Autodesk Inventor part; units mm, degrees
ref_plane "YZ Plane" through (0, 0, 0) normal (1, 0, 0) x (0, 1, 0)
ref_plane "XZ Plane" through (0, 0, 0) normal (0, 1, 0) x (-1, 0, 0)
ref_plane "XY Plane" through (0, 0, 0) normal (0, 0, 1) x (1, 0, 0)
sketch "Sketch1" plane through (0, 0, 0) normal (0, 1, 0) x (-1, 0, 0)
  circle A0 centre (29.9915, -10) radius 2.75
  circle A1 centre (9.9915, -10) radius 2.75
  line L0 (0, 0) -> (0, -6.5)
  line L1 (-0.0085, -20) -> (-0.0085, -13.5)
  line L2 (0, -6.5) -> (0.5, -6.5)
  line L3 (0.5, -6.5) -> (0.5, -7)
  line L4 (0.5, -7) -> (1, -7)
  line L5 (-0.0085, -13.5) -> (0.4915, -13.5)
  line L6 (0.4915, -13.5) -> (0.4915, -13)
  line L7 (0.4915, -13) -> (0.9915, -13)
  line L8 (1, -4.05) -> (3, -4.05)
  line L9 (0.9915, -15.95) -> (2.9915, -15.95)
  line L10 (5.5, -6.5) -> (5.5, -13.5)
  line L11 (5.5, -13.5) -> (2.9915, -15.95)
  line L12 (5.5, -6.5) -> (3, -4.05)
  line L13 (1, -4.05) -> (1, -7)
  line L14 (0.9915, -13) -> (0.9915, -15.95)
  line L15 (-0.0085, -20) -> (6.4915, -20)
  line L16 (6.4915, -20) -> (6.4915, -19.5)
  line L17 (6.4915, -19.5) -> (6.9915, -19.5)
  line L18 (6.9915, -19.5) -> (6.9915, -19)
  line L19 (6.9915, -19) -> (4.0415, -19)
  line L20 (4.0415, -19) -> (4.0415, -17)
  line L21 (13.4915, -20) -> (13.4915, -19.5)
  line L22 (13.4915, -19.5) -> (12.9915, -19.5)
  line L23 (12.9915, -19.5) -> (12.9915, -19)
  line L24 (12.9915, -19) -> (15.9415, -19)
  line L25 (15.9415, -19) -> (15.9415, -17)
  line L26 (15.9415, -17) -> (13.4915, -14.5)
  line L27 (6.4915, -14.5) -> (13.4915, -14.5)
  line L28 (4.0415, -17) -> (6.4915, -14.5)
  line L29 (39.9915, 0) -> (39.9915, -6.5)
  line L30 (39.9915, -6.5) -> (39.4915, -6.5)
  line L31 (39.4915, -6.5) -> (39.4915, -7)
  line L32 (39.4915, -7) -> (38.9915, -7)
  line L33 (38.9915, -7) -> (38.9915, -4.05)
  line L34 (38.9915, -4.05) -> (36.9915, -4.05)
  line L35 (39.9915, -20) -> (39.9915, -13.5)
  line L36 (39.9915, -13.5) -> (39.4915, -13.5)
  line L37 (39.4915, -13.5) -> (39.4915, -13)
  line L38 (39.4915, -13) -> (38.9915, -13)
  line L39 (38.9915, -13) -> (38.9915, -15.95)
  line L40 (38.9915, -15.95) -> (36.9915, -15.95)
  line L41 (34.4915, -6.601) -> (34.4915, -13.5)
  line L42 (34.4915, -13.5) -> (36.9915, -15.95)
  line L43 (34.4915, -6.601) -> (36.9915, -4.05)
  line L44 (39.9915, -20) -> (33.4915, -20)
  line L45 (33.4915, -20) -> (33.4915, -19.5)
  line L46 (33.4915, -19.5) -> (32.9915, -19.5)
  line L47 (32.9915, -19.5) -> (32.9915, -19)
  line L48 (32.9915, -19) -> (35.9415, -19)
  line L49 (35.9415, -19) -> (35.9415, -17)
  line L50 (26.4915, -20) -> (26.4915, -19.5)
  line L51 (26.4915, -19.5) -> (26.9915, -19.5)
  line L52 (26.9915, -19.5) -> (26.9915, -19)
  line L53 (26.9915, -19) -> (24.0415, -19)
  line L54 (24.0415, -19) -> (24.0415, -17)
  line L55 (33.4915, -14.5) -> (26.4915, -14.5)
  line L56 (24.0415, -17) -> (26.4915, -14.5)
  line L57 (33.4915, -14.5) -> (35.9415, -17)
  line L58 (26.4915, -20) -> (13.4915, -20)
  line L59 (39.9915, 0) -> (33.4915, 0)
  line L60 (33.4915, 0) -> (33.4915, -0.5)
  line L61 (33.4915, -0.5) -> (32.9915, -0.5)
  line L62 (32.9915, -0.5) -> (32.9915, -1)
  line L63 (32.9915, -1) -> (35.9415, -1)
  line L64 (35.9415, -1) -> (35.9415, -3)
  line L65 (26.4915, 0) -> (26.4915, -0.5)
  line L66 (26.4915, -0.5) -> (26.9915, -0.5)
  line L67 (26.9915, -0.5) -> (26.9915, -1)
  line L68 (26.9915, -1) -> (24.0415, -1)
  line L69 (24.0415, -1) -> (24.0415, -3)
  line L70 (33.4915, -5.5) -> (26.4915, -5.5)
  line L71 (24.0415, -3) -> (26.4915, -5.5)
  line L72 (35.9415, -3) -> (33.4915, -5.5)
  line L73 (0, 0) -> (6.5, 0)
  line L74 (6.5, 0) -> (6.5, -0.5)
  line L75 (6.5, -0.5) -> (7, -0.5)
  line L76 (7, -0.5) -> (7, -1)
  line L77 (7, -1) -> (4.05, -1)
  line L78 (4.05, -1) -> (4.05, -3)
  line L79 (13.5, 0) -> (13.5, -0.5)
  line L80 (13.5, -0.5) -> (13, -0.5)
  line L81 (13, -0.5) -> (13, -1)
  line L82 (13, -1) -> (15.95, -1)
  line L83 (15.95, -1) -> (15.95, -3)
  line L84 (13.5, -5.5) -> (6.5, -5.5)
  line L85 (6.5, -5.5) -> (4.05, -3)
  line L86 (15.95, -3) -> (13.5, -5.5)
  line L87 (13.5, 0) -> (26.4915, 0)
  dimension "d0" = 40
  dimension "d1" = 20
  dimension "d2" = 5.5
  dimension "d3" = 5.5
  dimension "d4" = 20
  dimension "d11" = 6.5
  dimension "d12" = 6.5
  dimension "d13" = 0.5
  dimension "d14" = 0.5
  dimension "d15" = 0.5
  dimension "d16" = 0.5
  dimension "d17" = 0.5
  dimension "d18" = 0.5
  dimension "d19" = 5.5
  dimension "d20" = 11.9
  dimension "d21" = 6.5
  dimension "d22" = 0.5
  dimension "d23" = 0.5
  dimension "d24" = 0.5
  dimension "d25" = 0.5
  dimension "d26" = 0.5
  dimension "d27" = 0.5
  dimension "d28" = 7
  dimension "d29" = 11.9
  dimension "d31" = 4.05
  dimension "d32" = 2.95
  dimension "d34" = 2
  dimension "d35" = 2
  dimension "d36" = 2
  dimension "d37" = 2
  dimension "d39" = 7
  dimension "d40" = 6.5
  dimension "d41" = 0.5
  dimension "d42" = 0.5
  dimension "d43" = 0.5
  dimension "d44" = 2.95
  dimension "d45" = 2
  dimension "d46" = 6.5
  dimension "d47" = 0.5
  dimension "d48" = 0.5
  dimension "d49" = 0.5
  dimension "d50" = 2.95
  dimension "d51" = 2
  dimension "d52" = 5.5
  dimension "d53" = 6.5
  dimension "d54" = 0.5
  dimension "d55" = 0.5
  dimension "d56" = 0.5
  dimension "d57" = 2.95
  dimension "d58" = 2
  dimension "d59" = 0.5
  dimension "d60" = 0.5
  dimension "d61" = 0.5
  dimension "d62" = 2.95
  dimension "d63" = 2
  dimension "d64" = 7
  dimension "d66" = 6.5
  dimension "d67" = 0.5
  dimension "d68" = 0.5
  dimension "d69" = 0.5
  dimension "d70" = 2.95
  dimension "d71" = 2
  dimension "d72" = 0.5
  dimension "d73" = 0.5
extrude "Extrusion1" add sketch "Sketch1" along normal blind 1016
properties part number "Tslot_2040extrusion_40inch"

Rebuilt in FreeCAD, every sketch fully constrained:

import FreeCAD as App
import Part
import Sketcher
from FreeCAD import Vector

doc = App.newDocument("Part")
body = doc.addObject("PartDesign::Body", "Body")

sketch1 = body.newObject("Sketcher::SketchObject", "Sketch")
sketch1.AttachmentSupport = (doc.getObject("XZ_Plane"), [""])
sketch1.MapMode = "FlatFace"
sketch1.addGeometry([
    Part.LineSegment(Vector(-6.5, 0, 0), Vector(0, 0, 0)),
    Part.LineSegment(Vector(0, 0, 0), Vector(0, -6.5, 0)),
    Part.LineSegment(Vector(0, -6.5, 0), Vector(-0.5, -6.5, 0)),
    Part.LineSegment(Vector(-0.5, -6.5, 0), Vector(-0.5, -7, 0)),
    Part.LineSegment(Vector(-0.5, -7, 0), Vector(-1, -7, 0)),
    Part.LineSegment(Vector(-1, -7, 0), Vector(-1, -4, 0)),
    Part.LineSegment(Vector(-1, -4, 0), Vector(-3, -4, 0)),
    Part.LineSegment(Vector(-3, -4, 0), Vector(-5.5, -6.5, 0)),
    Part.LineSegment(Vector(-5.5, -6.5, 0), Vector(-5.5, -13.5, 0)),
    Part.LineSegment(Vector(-5.5, -13.5, 0), Vector(-3, -15.9, 0)),
    Part.LineSegment(Vector(-3, -15.9, 0), Vector(-1, -15.9, 0)),
    Part.LineSegment(Vector(-1, -15.9, 0), Vector(-1, -13, 0)),
    Part.LineSegment(Vector(-1, -13, 0), Vector(-0.5, -13, 0)),
    Part.LineSegment(Vector(-0.5, -13, 0), Vector(-0.5, -13.5, 0)),
    Part.LineSegment(Vector(-0.5, -13.5, 0), Vector(0, -13.5, 0)),
    Part.LineSegment(Vector(0, -13.5, 0), Vector(0, -20, 0)),
    Part.LineSegment(Vector(0, -20, 0), Vector(-6.5, -20, 0)),
    Part.LineSegment(Vector(-6.5, -20, 0), Vector(-6.5, -19.5, 0)),
    Part.LineSegment(Vector(-6.5, -19.5, 0), Vector(-7, -19.5, 0)),
    Part.LineSegment(Vector(-7, -19.5, 0), Vector(-7, -19, 0)),
    Part.LineSegment(Vector(-7, -19, 0), Vector(-4, -19, 0)),
    Part.LineSegment(Vector(-4, -19, 0), Vector(-4, -17, 0)),
    Part.LineSegment(Vector(-4, -17, 0), Vector(-6.5, -14.5, 0)),
    Part.LineSegment(Vector(-6.5, -14.5, 0), Vector(-13.5, -14.5, 0)),
    Part.LineSegment(Vector(-13.5, -14.5, 0), Vector(-15.9, -17, 0)),
    Part.LineSegment(Vector(-15.9, -17, 0), Vector(-15.9, -19, 0)),
    Part.LineSegment(Vector(-15.9, -19, 0), Vector(-13, -19, 0)),
    Part.LineSegment(Vector(-13, -19, 0), Vector(-13, -19.5, 0)),
    Part.LineSegment(Vector(-13, -19.5, 0), Vector(-13.5, -19.5, 0)),
    Part.LineSegment(Vector(-13.5, -19.5, 0), Vector(-13.5, -20, 0)),
    Part.LineSegment(Vector(-13.5, -20, 0), Vector(-26.5, -20, 0)),
    Part.LineSegment(Vector(-26.5, -20, 0), Vector(-26.5, -19.5, 0)),
    Part.LineSegment(Vector(-26.5, -19.5, 0), Vector(-27, -19.5, 0)),
    Part.LineSegment(Vector(-27, -19.5, 0), Vector(-27, -19, 0)),
    Part.LineSegment(Vector(-27, -19, 0), Vector(-24, -19, 0)),
    Part.LineSegment(Vector(-24, -19, 0), Vector(-24, -17, 0)),
    Part.LineSegment(Vector(-24, -17, 0), Vector(-26.5, -14.5, 0)),
    Part.LineSegment(Vector(-26.5, -14.5, 0), Vector(-33.5, -14.5, 0)),
    Part.LineSegment(Vector(-33.5, -14.5, 0), Vector(-35.9, -17, 0)),
    Part.LineSegment(Vector(-35.9, -17, 0), Vector(-35.9, -19, 0)),
    Part.LineSegment(Vector(-35.9, -19, 0), Vector(-33, -19, 0)),
    Part.LineSegment(Vector(-33, -19, 0), Vector(-33, -19.5, 0)),
    Part.LineSegment(Vector(-33, -19.5, 0), Vector(-33.5, -19.5, 0)),
    Part.LineSegment(Vector(-33.5, -19.5, 0), Vector(-33.5, -20, 0)),
    Part.LineSegment(Vector(-33.5, -20, 0), Vector(-40, -20, 0)),
    Part.LineSegment(Vector(-40, -20, 0), Vector(-40, -13.5, 0)),
    Part.LineSegment(Vector(-40, -13.5, 0), Vector(-39.5, -13.5, 0)),
    Part.LineSegment(Vector(-39.5, -13.5, 0), Vector(-39.5, -13, 0)),
    Part.LineSegment(Vector(-39.5, -13, 0), Vector(-39, -13, 0)),
    Part.LineSegment(Vector(-39, -13, 0), Vector(-39, -15.9, 0)),
    Part.LineSegment(Vector(-39, -15.9, 0), Vector(-37, -15.9, 0)),
    Part.LineSegment(Vector(-37, -15.9, 0), Vector(-34.5, -13.5, 0)),
    Part.LineSegment(Vector(-34.5, -13.5, 0), Vector(-34.5, -6.6, 0)),
    Part.LineSegment(Vector(-34.5, -6.6, 0), Vector(-37, -4, 0)),
    Part.LineSegment(Vector(-37, -4, 0), Vector(-39, -4, 0)),
    Part.LineSegment(Vector(-39, -4, 0), Vector(-39, -7, 0)),
    Part.LineSegment(Vector(-39, -7, 0), Vector(-39.5, -7, 0)),
    Part.LineSegment(Vector(-39.5, -7, 0), Vector(-39.5, -6.5, 0)),
    Part.LineSegment(Vector(-39.5, -6.5, 0), Vector(-40, -6.5, 0)),
    Part.LineSegment(Vector(-40, -6.5, 0), Vector(-40, 0, 0)),
    Part.LineSegment(Vector(-40, 0, 0), Vector(-33.5, 0, 0)),
    Part.LineSegment(Vector(-33.5, 0, 0), Vector(-33.5, -0.5, 0)),
    Part.LineSegment(Vector(-33.5, -0.5, 0), Vector(-33, -0.5, 0)),
    Part.LineSegment(Vector(-33, -0.5, 0), Vector(-33, -1, 0)),
    Part.LineSegment(Vector(-33, -1, 0), Vector(-35.9, -1, 0)),
    Part.LineSegment(Vector(-35.9, -1, 0), Vector(-35.9, -3, 0)),
    Part.LineSegment(Vector(-35.9, -3, 0), Vector(-33.5, -5.5, 0)),
    Part.LineSegment(Vector(-33.5, -5.5, 0), Vector(-26.5, -5.5, 0)),
    Part.LineSegment(Vector(-26.5, -5.5, 0), Vector(-24, -3, 0)),
    Part.LineSegment(Vector(-24, -3, 0), Vector(-24, -1, 0)),
    Part.LineSegment(Vector(-24, -1, 0), Vector(-27, -1, 0)),
    Part.LineSegment(Vector(-27, -1, 0), Vector(-27, -0.5, 0)),
    Part.LineSegment(Vector(-27, -0.5, 0), Vector(-26.5, -0.5, 0)),
    Part.LineSegment(Vector(-26.5, -0.5, 0), Vector(-26.5, 0, 0)),
    Part.LineSegment(Vector(-26.5, 0, 0), Vector(-13.5, 0, 0)),
    Part.LineSegment(Vector(-13.5, 0, 0), Vector(-13.5, -0.5, 0)),
    Part.LineSegment(Vector(-13.5, -0.5, 0), Vector(-13, -0.5, 0)),
    Part.LineSegment(Vector(-13, -0.5, 0), Vector(-13, -1, 0)),
    Part.LineSegment(Vector(-13, -1, 0), Vector(-15.9, -1, 0)),
    Part.LineSegment(Vector(-15.9, -1, 0), Vector(-15.9, -3, 0)),
    Part.LineSegment(Vector(-15.9, -3, 0), Vector(-13.5, -5.5, 0)),
    Part.LineSegment(Vector(-13.5, -5.5, 0), Vector(-6.5, -5.5, 0)),
    Part.LineSegment(Vector(-6.5, -5.5, 0), Vector(-4, -3, 0)),
    Part.LineSegment(Vector(-4, -3, 0), Vector(-4, -1, 0)),
    Part.LineSegment(Vector(-4, -1, 0), Vector(-7, -1, 0)),
    Part.LineSegment(Vector(-7, -1, 0), Vector(-7, -0.5, 0)),
    Part.LineSegment(Vector(-7, -0.5, 0), Vector(-6.5, -0.5, 0)),
    Part.LineSegment(Vector(-6.5, -0.5, 0), Vector(-6.5, 0, 0)),
    Part.Circle(Vector(-10, -10, 0), Vector(0, 0, 1), 2.8),
    Part.Circle(Vector(-30, -10, 0), Vector(0, 0, 1), 2.8),
], False)
sketch1.addConstraint([
    Sketcher.Constraint("Coincident", 0, 2, 1, 1),
    Sketcher.Constraint("Coincident", 1, 2, 2, 1),
    Sketcher.Constraint("Coincident", 2, 2, 3, 1),
    Sketcher.Constraint("Coincident", 3, 2, 4, 1),
    Sketcher.Constraint("Coincident", 4, 2, 5, 1),
    Sketcher.Constraint("Coincident", 5, 2, 6, 1),
    Sketcher.Constraint("Coincident", 6, 2, 7, 1),
    Sketcher.Constraint("Coincident", 7, 2, 8, 1),
    Sketcher.Constraint("Coincident", 8, 2, 9, 1),
    Sketcher.Constraint("Coincident", 9, 2, 10, 1),
    Sketcher.Constraint("Coincident", 10, 2, 11, 1),
    Sketcher.Constraint("Coincident", 11, 2, 12, 1),
    Sketcher.Constraint("Coincident", 12, 2, 13, 1),
    Sketcher.Constraint("Coincident", 13, 2, 14, 1),
    Sketcher.Constraint("Coincident", 14, 2, 15, 1),
    Sketcher.Constraint("Coincident", 15, 2, 16, 1),
    Sketcher.Constraint("Coincident", 16, 2, 17, 1),
    Sketcher.Constraint("Coincident", 17, 2, 18, 1),
    Sketcher.Constraint("Coincident", 18, 2, 19, 1),
    Sketcher.Constraint("Coincident", 19, 2, 20, 1),
    Sketcher.Constraint("Coincident", 20, 2, 21, 1),
    Sketcher.Constraint("Coincident", 21, 2, 22, 1),
    Sketcher.Constraint("Coincident", 22, 2, 23, 1),
    Sketcher.Constraint("Coincident", 23, 2, 24, 1),
    Sketcher.Constraint("Coincident", 24, 2, 25, 1),
    Sketcher.Constraint("Coincident", 25, 2, 26, 1),
    Sketcher.Constraint("Coincident", 26, 2, 27, 1),
    Sketcher.Constraint("Coincident", 27, 2, 28, 1),
    Sketcher.Constraint("Coincident", 28, 2, 29, 1),
    Sketcher.Constraint("Coincident", 29, 2, 30, 1),
    Sketcher.Constraint("Coincident", 30, 2, 31, 1),
    Sketcher.Constraint("Coincident", 31, 2, 32, 1),
    Sketcher.Constraint("Coincident", 32, 2, 33, 1),
    Sketcher.Constraint("Coincident", 33, 2, 34, 1),
    Sketcher.Constraint("Coincident", 34, 2, 35, 1),
    Sketcher.Constraint("Coincident", 35, 2, 36, 1),
    Sketcher.Constraint("Coincident", 36, 2, 37, 1),
    Sketcher.Constraint("Coincident", 37, 2, 38, 1),
    Sketcher.Constraint("Coincident", 38, 2, 39, 1),
    Sketcher.Constraint("Coincident", 39, 2, 40, 1),
    Sketcher.Constraint("Coincident", 40, 2, 41, 1),
    Sketcher.Constraint("Coincident", 41, 2, 42, 1),
    Sketcher.Constraint("Coincident", 42, 2, 43, 1),
    Sketcher.Constraint("Coincident", 43, 2, 44, 1),
    Sketcher.Constraint("Coincident", 44, 2, 45, 1),
    Sketcher.Constraint("Coincident", 45, 2, 46, 1),
    Sketcher.Constraint("Coincident", 46, 2, 47, 1),
    Sketcher.Constraint("Coincident", 47, 2, 48, 1),
    Sketcher.Constraint("Coincident", 48, 2, 49, 1),
    Sketcher.Constraint("Coincident", 49, 2, 50, 1),
    Sketcher.Constraint("Coincident", 50, 2, 51, 1),
    Sketcher.Constraint("Coincident", 51, 2, 52, 1),
    Sketcher.Constraint("Coincident", 52, 2, 53, 1),
    Sketcher.Constraint("Coincident", 53, 2, 54, 1),
    Sketcher.Constraint("Coincident", 54, 2, 55, 1),
    Sketcher.Constraint("Coincident", 55, 2, 56, 1),
    Sketcher.Constraint("Coincident", 56, 2, 57, 1),
    Sketcher.Constraint("Coincident", 57, 2, 58, 1),
    Sketcher.Constraint("Coincident", 58, 2, 59, 1),
    Sketcher.Constraint("Coincident", 59, 2, 60, 1),
    Sketcher.Constraint("Coincident", 60, 2, 61, 1),
    Sketcher.Constraint("Coincident", 61, 2, 62, 1),
    Sketcher.Constraint("Coincident", 62, 2, 63, 1),
    Sketcher.Constraint("Coincident", 63, 2, 64, 1),
    Sketcher.Constraint("Coincident", 64, 2, 65, 1),
    Sketcher.Constraint("Coincident", 65, 2, 66, 1),
    Sketcher.Constraint("Coincident", 66, 2, 67, 1),
    Sketcher.Constraint("Coincident", 67, 2, 68, 1),
    Sketcher.Constraint("Coincident", 68, 2, 69, 1),
    Sketcher.Constraint("Coincident", 69, 2, 70, 1),
    Sketcher.Constraint("Coincident", 70, 2, 71, 1),
    Sketcher.Constraint("Coincident", 71, 2, 72, 1),
    Sketcher.Constraint("Coincident", 72, 2, 73, 1),
    Sketcher.Constraint("Coincident", 73, 2, 74, 1),
    Sketcher.Constraint("Coincident", 74, 2, 75, 1),
    Sketcher.Constraint("Coincident", 75, 2, 76, 1),
    Sketcher.Constraint("Coincident", 76, 2, 77, 1),
    Sketcher.Constraint("Coincident", 77, 2, 78, 1),
    Sketcher.Constraint("Coincident", 78, 2, 79, 1),
    Sketcher.Constraint("Coincident", 79, 2, 80, 1),
    Sketcher.Constraint("Coincident", 80, 2, 81, 1),
    Sketcher.Constraint("Coincident", 81, 2, 82, 1),
    Sketcher.Constraint("Coincident", 82, 2, 83, 1),
    Sketcher.Constraint("Coincident", 83, 2, 84, 1),
    Sketcher.Constraint("Coincident", 84, 2, 85, 1),
    Sketcher.Constraint("Coincident", 85, 2, 86, 1),
    Sketcher.Constraint("Coincident", 86, 2, 87, 1),
    Sketcher.Constraint("Coincident", 87, 2, 0, 1),
    Sketcher.Constraint("Horizontal", 0),
    Sketcher.Constraint("Vertical", 1),
    Sketcher.Constraint("Horizontal", 2),
    Sketcher.Constraint("Vertical", 3),
    Sketcher.Constraint("Horizontal", 4),
    Sketcher.Constraint("Vertical", 5),
    Sketcher.Constraint("Horizontal", 6),
    Sketcher.Constraint("Vertical", 8),
    Sketcher.Constraint("Horizontal", 10),
    Sketcher.Constraint("Vertical", 11),
    Sketcher.Constraint("Horizontal", 12),
    Sketcher.Constraint("Vertical", 13),
    Sketcher.Constraint("Horizontal", 14),
    Sketcher.Constraint("Vertical", 15),
    Sketcher.Constraint("Horizontal", 16),
    Sketcher.Constraint("Vertical", 17),
    Sketcher.Constraint("Horizontal", 18),
    Sketcher.Constraint("Vertical", 19),
    Sketcher.Constraint("Horizontal", 20),
    Sketcher.Constraint("Vertical", 21),
    Sketcher.Constraint("Horizontal", 23),
    Sketcher.Constraint("Vertical", 25),
    Sketcher.Constraint("Horizontal", 26),
    Sketcher.Constraint("Vertical", 27),
    Sketcher.Constraint("Horizontal", 28),
    Sketcher.Constraint("Vertical", 29),
    Sketcher.Constraint("Horizontal", 30),
    Sketcher.Constraint("Vertical", 31),
    Sketcher.Constraint("Horizontal", 32),
    Sketcher.Constraint("Vertical", 33),
    Sketcher.Constraint("Horizontal", 34),
    Sketcher.Constraint("Vertical", 35),
    Sketcher.Constraint("Horizontal", 37),
    Sketcher.Constraint("Vertical", 39),
    Sketcher.Constraint("Horizontal", 40),
    Sketcher.Constraint("Vertical", 41),
    Sketcher.Constraint("Horizontal", 42),
    Sketcher.Constraint("Vertical", 43),
    Sketcher.Constraint("Horizontal", 44),
    Sketcher.Constraint("Vertical", 45),
    Sketcher.Constraint("Horizontal", 46),
    Sketcher.Constraint("Vertical", 47),
    Sketcher.Constraint("Horizontal", 48),
    Sketcher.Constraint("Vertical", 49),
    Sketcher.Constraint("Horizontal", 50),
    Sketcher.Constraint("Vertical", 52),
    Sketcher.Constraint("Horizontal", 54),
    Sketcher.Constraint("Vertical", 55),
    Sketcher.Constraint("Horizontal", 56),
    Sketcher.Constraint("Vertical", 57),
    Sketcher.Constraint("Horizontal", 58),
    Sketcher.Constraint("Vertical", 59),
    Sketcher.Constraint("Horizontal", 60),
    Sketcher.Constraint("Vertical", 61),
    Sketcher.Constraint("Horizontal", 62),
    Sketcher.Constraint("Vertical", 63),
    Sketcher.Constraint("Horizontal", 64),
    Sketcher.Constraint("Vertical", 65),
    Sketcher.Constraint("Horizontal", 67),
    Sketcher.Constraint("Vertical", 69),
    Sketcher.Constraint("Horizontal", 70),
    Sketcher.Constraint("Vertical", 71),
    Sketcher.Constraint("Horizontal", 72),
    Sketcher.Constraint("Vertical", 73),
    Sketcher.Constraint("Horizontal", 74),
    Sketcher.Constraint("Vertical", 75),
    Sketcher.Constraint("Horizontal", 76),
    Sketcher.Constraint("Vertical", 77),
    Sketcher.Constraint("Horizontal", 78),
    Sketcher.Constraint("Vertical", 79),
    Sketcher.Constraint("Horizontal", 81),
    Sketcher.Constraint("Vertical", 83),
    Sketcher.Constraint("Horizontal", 84),
    Sketcher.Constraint("Vertical", 85),
    Sketcher.Constraint("Horizontal", 86),
    Sketcher.Constraint("Vertical", 87),
    Sketcher.Constraint("Coincident", 0, 2, -1, 1),
    Sketcher.Constraint("Equal", 88, 89),
    Sketcher.Constraint("PointOnObject", 59, 2, -1),
    Sketcher.Constraint("PointOnObject", 73, 2, -1),
    Sketcher.Constraint("Perpendicular", 7, 22),
    Sketcher.Constraint("Parallel", 22, 36),
    Sketcher.Constraint("Parallel", 24, 38),
    Sketcher.Constraint("Perpendicular", 36, 51),
    Sketcher.Constraint("Perpendicular", 51, 53),
    Sketcher.Constraint("Parallel", 53, 66),
    Sketcher.Constraint("Parallel", 38, 68),
    Sketcher.Constraint("Parallel", 66, 80),
    Sketcher.Constraint("Parallel", 68, 82),
    Sketcher.Constraint("Horizontal", 88, 3, 89, 3),
    Sketcher.Constraint("Horizontal", 2, 2, 7, 2),
    Sketcher.Constraint("Horizontal", 8, 2, 13, 2),
    Sketcher.Constraint("Horizontal", 21, 2, 24, 2),
    Sketcher.Constraint("Horizontal", 20, 2, 25, 2),
    Sketcher.Constraint("Horizontal", 18, 2, 27, 2),
    Sketcher.Constraint("Horizontal", 16, 2, 29, 2),
    Sketcher.Constraint("Horizontal", 28, 2, 31, 2),
    Sketcher.Constraint("Horizontal", 26, 2, 33, 2),
    Sketcher.Constraint("Horizontal", 24, 2, 35, 2),
    Sketcher.Constraint("Horizontal", 23, 2, 36, 2),
    Sketcher.Constraint("Horizontal", 35, 2, 38, 2),
    Sketcher.Constraint("Horizontal", 34, 2, 39, 2),
    Sketcher.Constraint("Horizontal", 32, 2, 41, 2),
    Sketcher.Constraint("Horizontal", 30, 2, 43, 2),
    Sketcher.Constraint("Horizontal", 14, 2, 45, 2),
    Sketcher.Constraint("Horizontal", 12, 2, 47, 2),
    Sketcher.Constraint("Horizontal", 10, 2, 49, 2),
    Sketcher.Constraint("Horizontal", 46, 2, 51, 2),
    Sketcher.Constraint("Horizontal", 6, 2, 53, 2),
    Sketcher.Constraint("Horizontal", 4, 2, 55, 2),
    Sketcher.Constraint("Horizontal", 7, 2, 57, 2),
    Sketcher.Constraint("Horizontal", 65, 2, 68, 2),
    Sketcher.Constraint("Horizontal", 64, 2, 69, 2),
    Sketcher.Constraint("Horizontal", 62, 2, 71, 2),
    Sketcher.Constraint("Horizontal", 72, 2, 75, 2),
    Sketcher.Constraint("Horizontal", 70, 2, 77, 2),
    Sketcher.Constraint("Horizontal", 68, 2, 79, 2),
    Sketcher.Constraint("Horizontal", 67, 2, 80, 2),
    Sketcher.Constraint("Horizontal", 79, 2, 82, 2),
    Sketcher.Constraint("Horizontal", 78, 2, 83, 2),
    Sketcher.Constraint("Horizontal", 76, 2, 85, 2),
    Sketcher.Constraint("Vertical", 17, 2, 22, 2),
    Sketcher.Constraint("Vertical", 23, 2, 28, 2),
    Sketcher.Constraint("Vertical", 31, 2, 36, 2),
    Sketcher.Constraint("Vertical", 37, 2, 42, 2),
    Sketcher.Constraint("Vertical", 50, 2, 53, 2),
    Sketcher.Constraint("Vertical", 49, 2, 54, 2),
    Sketcher.Constraint("Vertical", 47, 2, 56, 2),
    Sketcher.Constraint("Vertical", 45, 2, 58, 2),
    Sketcher.Constraint("Vertical", 43, 2, 60, 2),
    Sketcher.Constraint("Vertical", 41, 2, 62, 2),
    Sketcher.Constraint("Vertical", 39, 2, 64, 2),
    Sketcher.Constraint("Vertical", 61, 2, 66, 2),
    Sketcher.Constraint("Vertical", 36, 2, 67, 2),
    Sketcher.Constraint("Vertical", 35, 2, 68, 2),
    Sketcher.Constraint("Vertical", 33, 2, 70, 2),
    Sketcher.Constraint("Vertical", 67, 2, 72, 2),
    Sketcher.Constraint("Vertical", 75, 2, 80, 2),
    Sketcher.Constraint("Vertical", 81, 2, 86, 2),
    Sketcher.Constraint("Equal", 2, 4),
    Sketcher.Constraint("Equal", 6, 10),
    Sketcher.Constraint("Equal", 4, 12),
    Sketcher.Constraint("Equal", 12, 14),
    Sketcher.Constraint("Equal", 0, 16),
    Sketcher.Constraint("Equal", 14, 18),
    Sketcher.Constraint("Equal", 20, 26),
    Sketcher.Constraint("Equal", 28, 32),
    Sketcher.Constraint("Equal", 23, 37),
    Sketcher.Constraint("Equal", 34, 40),
    Sketcher.Constraint("Equal", 16, 44),
    Sketcher.Constraint("Equal", 42, 46),
    Sketcher.Constraint("Equal", 46, 48),
    Sketcher.Constraint("Equal", 10, 50),
    Sketcher.Constraint("Equal", 72, 76),
    Sketcher.Constraint("Equal", 67, 81),
    Sketcher.Constraint("Equal", 78, 84),
    Sketcher.Constraint("Equal", 60, 1),
    Sketcher.Constraint("Equal", 86, 3),
    Sketcher.Constraint("Equal", 84, 5),
    Sketcher.Constraint("Equal", 81, 8),
    Sketcher.Constraint("Equal", 5, 11),
    Sketcher.Constraint("Equal", 3, 13),
    Sketcher.Constraint("Equal", 1, 15),
    Sketcher.Constraint("Equal", 13, 17),
    Sketcher.Constraint("Equal", 17, 19),
    Sketcher.Constraint("Equal", 54, 21),
    Sketcher.Constraint("Equal", 57, 61),
    Sketcher.Constraint("Equal", 61, 63),
    Sketcher.Constraint("Equal", 39, 65),
    Sketcher.Constraint("Diameter", 88, 5.5),
    Sketcher.Constraint("DistanceX", 6, 2, 6, 1, 2.0),
    Sketcher.Constraint("DistanceX", 23, 2, 23, 1, 7.0),
    Sketcher.Constraint("DistanceX", 0, 1, 0, 2, 6.5),
    Sketcher.Constraint("DistanceX", 2, 2, 2, 1, 0.5),
    Sketcher.Constraint("DistanceX", 20, 1, 20, 2, 2.95),
    Sketcher.Constraint("DistanceX", 7, 2, -1, 1, 5.5),
    Sketcher.Constraint("DistanceX", 30, 2, 30, 1, 13.0),
    Sketcher.Constraint("DistanceY", 88, 3, -1, 1, 10.0),
    Sketcher.Constraint("DistanceX", 74, 1, 74, 2, 12.9915),
    Sketcher.Constraint("DistanceX", 88, 3, -1, 1, 9.9915),
    Sketcher.Constraint("DistanceX", 89, 3, -1, 1, 29.9915),
])
pad1 = body.newObject("PartDesign::Pad", "Pad")
pad1.Profile = sketch1
pad1.Length = 1016
pad1.Reversed = True

doc.recompute()
